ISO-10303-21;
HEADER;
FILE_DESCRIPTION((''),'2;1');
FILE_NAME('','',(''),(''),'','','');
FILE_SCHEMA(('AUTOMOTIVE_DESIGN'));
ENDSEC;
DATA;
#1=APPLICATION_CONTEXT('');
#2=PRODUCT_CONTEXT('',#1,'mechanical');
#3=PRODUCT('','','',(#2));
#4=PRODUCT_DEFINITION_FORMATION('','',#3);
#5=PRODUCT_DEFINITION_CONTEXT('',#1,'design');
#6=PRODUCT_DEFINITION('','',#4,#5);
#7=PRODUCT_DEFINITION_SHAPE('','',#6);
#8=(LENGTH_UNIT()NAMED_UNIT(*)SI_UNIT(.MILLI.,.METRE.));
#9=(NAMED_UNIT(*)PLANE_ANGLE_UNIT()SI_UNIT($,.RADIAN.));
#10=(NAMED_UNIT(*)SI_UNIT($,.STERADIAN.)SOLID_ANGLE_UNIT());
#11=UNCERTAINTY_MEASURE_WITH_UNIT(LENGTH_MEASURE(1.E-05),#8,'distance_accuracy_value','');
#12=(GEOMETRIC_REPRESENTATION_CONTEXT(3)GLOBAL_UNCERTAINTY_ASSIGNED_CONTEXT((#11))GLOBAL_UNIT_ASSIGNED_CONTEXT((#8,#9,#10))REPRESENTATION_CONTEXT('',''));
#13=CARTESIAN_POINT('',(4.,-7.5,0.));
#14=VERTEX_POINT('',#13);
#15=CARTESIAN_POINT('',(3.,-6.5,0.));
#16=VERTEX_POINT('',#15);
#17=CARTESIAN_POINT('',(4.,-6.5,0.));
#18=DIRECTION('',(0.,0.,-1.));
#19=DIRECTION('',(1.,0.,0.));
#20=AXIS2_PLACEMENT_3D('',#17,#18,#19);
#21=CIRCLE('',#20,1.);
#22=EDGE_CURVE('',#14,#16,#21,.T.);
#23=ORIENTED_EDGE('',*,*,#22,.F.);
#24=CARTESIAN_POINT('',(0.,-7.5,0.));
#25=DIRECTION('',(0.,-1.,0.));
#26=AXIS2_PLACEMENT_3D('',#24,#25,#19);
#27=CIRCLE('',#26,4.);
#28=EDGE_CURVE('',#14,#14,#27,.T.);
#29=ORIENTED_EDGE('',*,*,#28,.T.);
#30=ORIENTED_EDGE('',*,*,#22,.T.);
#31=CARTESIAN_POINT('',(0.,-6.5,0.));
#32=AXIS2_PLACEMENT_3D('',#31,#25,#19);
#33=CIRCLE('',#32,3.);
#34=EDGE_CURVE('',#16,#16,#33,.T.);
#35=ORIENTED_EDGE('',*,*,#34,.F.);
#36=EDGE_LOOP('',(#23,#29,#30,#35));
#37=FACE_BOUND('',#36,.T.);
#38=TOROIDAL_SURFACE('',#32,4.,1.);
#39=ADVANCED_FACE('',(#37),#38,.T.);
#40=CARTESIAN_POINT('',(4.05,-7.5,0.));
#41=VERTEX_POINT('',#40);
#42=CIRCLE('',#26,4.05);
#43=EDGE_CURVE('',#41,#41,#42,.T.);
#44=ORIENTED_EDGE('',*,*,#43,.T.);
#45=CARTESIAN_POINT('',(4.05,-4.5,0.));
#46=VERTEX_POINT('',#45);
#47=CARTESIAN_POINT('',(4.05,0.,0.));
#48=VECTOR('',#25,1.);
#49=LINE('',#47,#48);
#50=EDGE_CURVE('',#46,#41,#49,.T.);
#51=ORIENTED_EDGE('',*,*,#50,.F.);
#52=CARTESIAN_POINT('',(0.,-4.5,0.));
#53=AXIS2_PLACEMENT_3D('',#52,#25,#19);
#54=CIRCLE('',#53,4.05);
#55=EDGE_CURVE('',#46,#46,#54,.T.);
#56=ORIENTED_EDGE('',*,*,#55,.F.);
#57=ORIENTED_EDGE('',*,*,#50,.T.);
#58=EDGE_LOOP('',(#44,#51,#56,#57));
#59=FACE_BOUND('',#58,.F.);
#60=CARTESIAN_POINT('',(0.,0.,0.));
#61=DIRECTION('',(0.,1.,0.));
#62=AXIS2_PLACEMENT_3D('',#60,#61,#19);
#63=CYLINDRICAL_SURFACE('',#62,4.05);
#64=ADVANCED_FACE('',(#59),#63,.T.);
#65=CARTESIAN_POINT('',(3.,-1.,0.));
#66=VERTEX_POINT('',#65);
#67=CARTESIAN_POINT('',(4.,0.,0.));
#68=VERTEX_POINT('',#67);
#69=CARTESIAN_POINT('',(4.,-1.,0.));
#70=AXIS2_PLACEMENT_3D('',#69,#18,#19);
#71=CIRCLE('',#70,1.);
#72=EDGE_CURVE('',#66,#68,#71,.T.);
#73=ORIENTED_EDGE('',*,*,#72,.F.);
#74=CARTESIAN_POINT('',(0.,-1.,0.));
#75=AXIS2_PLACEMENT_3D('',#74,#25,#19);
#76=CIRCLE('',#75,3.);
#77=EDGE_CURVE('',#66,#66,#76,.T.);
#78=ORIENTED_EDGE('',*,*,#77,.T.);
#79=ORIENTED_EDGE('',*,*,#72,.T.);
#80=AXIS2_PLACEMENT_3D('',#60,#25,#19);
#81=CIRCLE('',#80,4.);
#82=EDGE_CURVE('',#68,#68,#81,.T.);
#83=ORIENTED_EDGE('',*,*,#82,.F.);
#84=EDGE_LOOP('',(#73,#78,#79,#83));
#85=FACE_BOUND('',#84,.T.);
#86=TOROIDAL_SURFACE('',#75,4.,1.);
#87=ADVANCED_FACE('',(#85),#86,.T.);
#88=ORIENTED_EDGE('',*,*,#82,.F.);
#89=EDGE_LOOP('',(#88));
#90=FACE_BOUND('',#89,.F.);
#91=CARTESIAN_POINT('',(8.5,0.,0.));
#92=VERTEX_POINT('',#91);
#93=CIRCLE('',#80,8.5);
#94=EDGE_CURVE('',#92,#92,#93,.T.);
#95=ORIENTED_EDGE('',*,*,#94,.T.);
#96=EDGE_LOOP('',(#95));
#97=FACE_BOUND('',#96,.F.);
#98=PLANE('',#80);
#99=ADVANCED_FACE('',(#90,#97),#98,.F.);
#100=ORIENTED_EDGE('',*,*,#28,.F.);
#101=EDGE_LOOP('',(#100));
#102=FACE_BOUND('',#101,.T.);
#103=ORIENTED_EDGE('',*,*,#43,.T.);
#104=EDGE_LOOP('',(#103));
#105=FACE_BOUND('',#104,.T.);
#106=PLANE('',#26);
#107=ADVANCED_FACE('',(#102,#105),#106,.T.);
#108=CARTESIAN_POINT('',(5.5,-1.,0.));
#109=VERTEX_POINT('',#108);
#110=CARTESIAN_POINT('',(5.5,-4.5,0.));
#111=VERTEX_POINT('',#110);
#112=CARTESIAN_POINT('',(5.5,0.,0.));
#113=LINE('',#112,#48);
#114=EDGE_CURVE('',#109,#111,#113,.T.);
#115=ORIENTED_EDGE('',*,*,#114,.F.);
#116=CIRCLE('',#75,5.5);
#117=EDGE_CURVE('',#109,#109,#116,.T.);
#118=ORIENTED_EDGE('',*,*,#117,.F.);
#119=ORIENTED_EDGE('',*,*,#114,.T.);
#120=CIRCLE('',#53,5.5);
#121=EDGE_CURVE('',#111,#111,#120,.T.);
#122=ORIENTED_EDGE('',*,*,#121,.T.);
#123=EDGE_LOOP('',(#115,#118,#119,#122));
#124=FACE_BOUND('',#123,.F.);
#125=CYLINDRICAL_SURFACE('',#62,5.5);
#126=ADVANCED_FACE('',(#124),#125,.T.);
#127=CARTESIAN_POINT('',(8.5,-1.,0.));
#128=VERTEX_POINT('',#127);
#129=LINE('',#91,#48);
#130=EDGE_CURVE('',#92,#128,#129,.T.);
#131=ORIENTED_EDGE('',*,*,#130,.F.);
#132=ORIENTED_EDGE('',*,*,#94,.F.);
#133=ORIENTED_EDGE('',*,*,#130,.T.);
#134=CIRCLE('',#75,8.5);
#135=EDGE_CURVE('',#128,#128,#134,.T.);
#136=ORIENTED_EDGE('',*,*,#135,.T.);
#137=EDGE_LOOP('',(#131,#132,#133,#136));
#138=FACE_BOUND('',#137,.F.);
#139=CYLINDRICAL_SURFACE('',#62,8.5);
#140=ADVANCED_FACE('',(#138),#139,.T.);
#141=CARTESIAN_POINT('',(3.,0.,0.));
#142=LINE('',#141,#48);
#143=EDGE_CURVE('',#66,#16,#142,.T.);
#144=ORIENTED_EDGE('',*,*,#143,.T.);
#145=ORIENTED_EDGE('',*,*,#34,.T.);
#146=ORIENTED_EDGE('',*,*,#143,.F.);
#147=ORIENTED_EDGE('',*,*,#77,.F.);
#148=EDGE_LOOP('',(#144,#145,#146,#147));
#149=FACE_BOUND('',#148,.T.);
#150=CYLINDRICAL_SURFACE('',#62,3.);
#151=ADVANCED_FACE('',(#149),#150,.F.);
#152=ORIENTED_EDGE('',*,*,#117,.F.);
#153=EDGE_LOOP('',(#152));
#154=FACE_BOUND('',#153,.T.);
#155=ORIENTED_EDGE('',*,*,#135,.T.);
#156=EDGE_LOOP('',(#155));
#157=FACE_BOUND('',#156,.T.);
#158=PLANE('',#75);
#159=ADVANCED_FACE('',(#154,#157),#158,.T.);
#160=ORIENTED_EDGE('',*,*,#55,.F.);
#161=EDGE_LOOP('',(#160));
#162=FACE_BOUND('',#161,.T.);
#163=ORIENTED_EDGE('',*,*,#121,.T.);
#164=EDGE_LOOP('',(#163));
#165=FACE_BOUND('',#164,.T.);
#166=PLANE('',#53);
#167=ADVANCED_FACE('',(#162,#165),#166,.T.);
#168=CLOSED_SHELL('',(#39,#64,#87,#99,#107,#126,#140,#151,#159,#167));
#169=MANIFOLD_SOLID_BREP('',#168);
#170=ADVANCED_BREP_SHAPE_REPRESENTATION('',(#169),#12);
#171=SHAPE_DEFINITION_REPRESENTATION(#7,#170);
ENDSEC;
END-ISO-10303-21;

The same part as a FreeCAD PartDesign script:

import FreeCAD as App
import Part
import Sketcher


def edges_at(feature, points):
    """Names of the edges that pass closest to the given points."""
    edges = feature.Shape.Edges
    near = lambda p: min(range(len(edges)), key=lambda i: edges[i].distToShape(Part.Vertex(*p))[0])
    return sorted({f"Edge{near(p) + 1}" for p in points})

doc = App.newDocument("Part")
body = doc.addObject("PartDesign::Body", "Body")

# Sketch on XZ plane
sketch1 = body.newObject("Sketcher::SketchObject", "Sketch")
sketch1.AttachmentSupport = (doc.getObject("XZ_Plane"), [""])
sketch1.MapMode = "FlatFace"
sketch1.addGeometry([
    Part.Circle(App.Vector(0, 0, 0), App.Vector(0, 0, 1), 8),
    Part.Circle(App.Vector(0, 0, 0), App.Vector(0, 0, 1), 6),
], False)
sketch1.addConstraint([
    Sketcher.Constraint("Coincident", 0, 3, -1, 1),
    Sketcher.Constraint("Coincident", 1, 3, -1, 1),
    Sketcher.Constraint("Diameter", 0, 17.0),
    Sketcher.Constraint("Diameter", 1, 11.0),
])
pad1 = body.newObject("PartDesign::Pad", "Pad")
pad1.Profile = sketch1
pad1.Length = 1

# Sketch on XZ plane
sketch2 = body.newObject("Sketcher::SketchObject", "Sketch001")
sketch2.AttachmentSupport = (doc.getObject("XZ_Plane"), [""])
sketch2.MapMode = "FlatFace"
sketch2.addGeometry([
    Part.Circle(App.Vector(0, 0, 0), App.Vector(0, 0, 1), 5.5),
    Part.Circle(App.Vector(0, 0, 0), App.Vector(0, 0, 1), 4),
], False)
sketch2.addConstraint([
    Sketcher.Constraint("Coincident", 0, 3, -1, 1),
    Sketcher.Constraint("Coincident", 1, 3, -1, 1),
    Sketcher.Constraint("Diameter", 0, 11.0),
    Sketcher.Constraint("Diameter", 1, 8.1),
])
pad2 = body.newObject("PartDesign::Pad", "Pad001")
pad2.Profile = sketch2
pad2.Length = 4.5

# Sketch on XZ plane
sketch3 = body.newObject("Sketcher::SketchObject", "Sketch002")
sketch3.AttachmentSupport = (doc.getObject("XZ_Plane"), [""])
sketch3.MapMode = "FlatFace"
sketch3.addGeometry([
    Part.Circle(App.Vector(0, 0, 0), App.Vector(0, 0, 1), 4),
    Part.Circle(App.Vector(0, 0, 0), App.Vector(0, 0, 1), 3),
], False)
sketch3.addConstraint([
    Sketcher.Constraint("Coincident", 0, 3, -1, 1),
    Sketcher.Constraint("Coincident", 1, 3, -1, 1),
    Sketcher.Constraint("Diameter", 1, 6.0),
    Sketcher.Constraint("Diameter", 0, 8.1),
])
pad3 = body.newObject("PartDesign::Pad", "Pad002")
pad3.Profile = sketch3
pad3.Length = 7.5
doc.recompute()

fillet = body.newObject("PartDesign::Fillet", "Fillet")
fillet.Base = (pad3, edges_at(pad3, [(-3, -7.5, 0)]))
fillet.Radius = 1
doc.recompute()

fillet2 = body.newObject("PartDesign::Fillet", "Fillet001")
fillet2.Base = (fillet, edges_at(fillet, [(-3, 0, 0)]))
fillet2.Radius = 1

doc.recompute()
